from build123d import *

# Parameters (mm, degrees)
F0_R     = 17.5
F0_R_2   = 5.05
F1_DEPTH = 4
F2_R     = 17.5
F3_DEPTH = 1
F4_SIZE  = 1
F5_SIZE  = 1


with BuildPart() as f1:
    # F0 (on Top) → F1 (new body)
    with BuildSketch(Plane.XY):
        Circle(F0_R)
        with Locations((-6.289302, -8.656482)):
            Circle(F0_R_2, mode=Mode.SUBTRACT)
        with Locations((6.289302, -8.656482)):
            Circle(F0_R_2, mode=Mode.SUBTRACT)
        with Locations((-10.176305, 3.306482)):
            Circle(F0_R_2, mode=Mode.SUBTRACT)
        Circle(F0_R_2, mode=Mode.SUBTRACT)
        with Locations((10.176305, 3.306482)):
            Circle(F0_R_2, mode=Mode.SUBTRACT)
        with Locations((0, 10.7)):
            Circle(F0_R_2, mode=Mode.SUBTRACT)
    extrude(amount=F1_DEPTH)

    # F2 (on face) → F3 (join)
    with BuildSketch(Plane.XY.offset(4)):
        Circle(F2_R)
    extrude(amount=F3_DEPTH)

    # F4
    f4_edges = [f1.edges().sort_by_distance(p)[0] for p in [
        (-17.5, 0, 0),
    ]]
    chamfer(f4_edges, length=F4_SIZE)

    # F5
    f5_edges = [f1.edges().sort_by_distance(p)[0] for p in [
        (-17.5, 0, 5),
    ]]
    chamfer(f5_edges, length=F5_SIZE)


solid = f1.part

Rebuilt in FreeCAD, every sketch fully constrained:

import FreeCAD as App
import Part
import Sketcher
from FreeCAD import Vector


def edges_at(feature, points):
    """Names of the edges that pass closest to the given points."""
    edges = feature.Shape.Edges
    near = lambda p: min(range(len(edges)), key=lambda i: edges[i].distToShape(Part.Vertex(*p))[0])
    return sorted({f"Edge{near(p) + 1}" for p in points})

doc = App.newDocument("Part")
params = doc.addObject("Spreadsheet::Sheet", "Params")
for row, (alias, value) in enumerate([
    ("sketch1_diameter", "35 mm"),
    ("sketch1_diameter2", "10.1 mm"),
    ("pad1_length", "4 mm"),
    ("sketch2_diameter", "35 mm"),
    ("pad2_length", "1 mm"),
    ("chamfer_size", "1 mm"),
    ("chamfer2_size", "1 mm"),
], start=1):
    params.set(f"A{row}", alias)
    params.set(f"B{row}", "=" + value)
    params.setAlias(f"B{row}", alias)

body = doc.addObject("PartDesign::Body", "Body")

# Sketch on XY plane
sketch1 = body.newObject("Sketcher::SketchObject", "Sketch")
sketch1.AttachmentSupport = (doc.getObject("XY_Plane"), [""])
sketch1.MapMode = "FlatFace"
sketch1.addGeometry([
    Part.Circle(Vector(0, 0, 0), Vector(0, 0, 1), 17.5),  # 0
    Part.Circle(Vector(-6.289302, -8.656482, 0), Vector(0, 0, 1), 5.05),  # 1
    Part.Circle(Vector(0, 0, 0), Vector(0, 0, 1), 5.05),  # 2
    Part.Circle(Vector(6.289302, -8.656482, 0), Vector(0, 0, 1), 5.05),  # 3
    Part.Circle(Vector(-10.176305, 3.306482, 0), Vector(0, 0, 1), 5.05),  # 4
    Part.Circle(Vector(0, 10.7, 0), Vector(0, 0, 1), 5.05),  # 5
    Part.Circle(Vector(10.176305, 3.306482, 0), Vector(0, 0, 1), 5.05),  # 6
], False)
sketch1.addConstraint([
    Sketcher.Constraint("Coincident", 0, 3, -1, 1),
    Sketcher.Constraint("Coincident", 2, 3, -1, 1),
    Sketcher.Constraint("Equal", 1, 2),
    Sketcher.Constraint("Equal", 2, 3),
    Sketcher.Constraint("Equal", 3, 4),
    Sketcher.Constraint("Equal", 4, 5),
    Sketcher.Constraint("Equal", 5, 6),
    Sketcher.Constraint("Symmetric", 1, 3, 3, 3, -2),
    Sketcher.Constraint("Symmetric", 4, 3, 6, 3, -2),
    Sketcher.Constraint("PointOnObject", 5, 3, -2),
    Sketcher.Constraint("Diameter", 0, 35.0),
    Sketcher.Constraint("Diameter", 1, 10.1),
    Sketcher.Constraint("DistanceY", -1, 1, 5, 3, 10.7),
    Sketcher.Constraint("DistanceY", -1, 1, 4, 3, 3.306482),
    Sketcher.Constraint("DistanceY", 1, 3, 5, 3, 19.356482),
    Sketcher.Constraint("DistanceX", 1, 3, -1, 1, 6.289302),
    Sketcher.Constraint("DistanceX", 4, 3, -1, 1, 10.176305),
])
sketch1.setExpression("Constraints[10]", "Params.sketch1_diameter")
sketch1.setExpression("Constraints[11]", "Params.sketch1_diameter2")
pad1 = body.newObject("PartDesign::Pad", "Pad")
pad1.Profile = sketch1
pad1.setExpression("Length", "Params.pad1_length")

# Sketch on XY plane
sketch2 = body.newObject("Sketcher::SketchObject", "Sketch001")
sketch2.AttachmentSupport = (doc.getObject("XY_Plane"), [""])
sketch2.MapMode = "FlatFace"
sketch2.AttachmentOffset = App.Placement(Vector(0, 0, 4), App.Rotation())
sketch2.addGeometry(Part.Circle(Vector(0, 0, 0), Vector(0, 0, 1), 17.5), False)
sketch2.addConstraint([
    Sketcher.Constraint("Coincident", 0, 3, -1, 1),
    Sketcher.Constraint("Diameter", 0, 35.0),
])
sketch2.setExpression("Constraints[1]", "Params.sketch2_diameter")
pad2 = body.newObject("PartDesign::Pad", "Pad001")
pad2.Profile = sketch2
pad2.setExpression("Length", "Params.pad2_length")
doc.recompute()

chamfer = body.newObject("PartDesign::Chamfer", "Chamfer")
chamfer.Base = (pad2, edges_at(pad2, [(-17.5, 0, 0)]))
chamfer.setExpression("Size", "Params.chamfer_size")
doc.recompute()

chamfer2 = body.newObject("PartDesign::Chamfer", "Chamfer001")
chamfer2.Base = (chamfer, edges_at(chamfer, [(-17.5, 0, 5)]))
chamfer2.setExpression("Size", "Params.chamfer2_size")

doc.recompute()
